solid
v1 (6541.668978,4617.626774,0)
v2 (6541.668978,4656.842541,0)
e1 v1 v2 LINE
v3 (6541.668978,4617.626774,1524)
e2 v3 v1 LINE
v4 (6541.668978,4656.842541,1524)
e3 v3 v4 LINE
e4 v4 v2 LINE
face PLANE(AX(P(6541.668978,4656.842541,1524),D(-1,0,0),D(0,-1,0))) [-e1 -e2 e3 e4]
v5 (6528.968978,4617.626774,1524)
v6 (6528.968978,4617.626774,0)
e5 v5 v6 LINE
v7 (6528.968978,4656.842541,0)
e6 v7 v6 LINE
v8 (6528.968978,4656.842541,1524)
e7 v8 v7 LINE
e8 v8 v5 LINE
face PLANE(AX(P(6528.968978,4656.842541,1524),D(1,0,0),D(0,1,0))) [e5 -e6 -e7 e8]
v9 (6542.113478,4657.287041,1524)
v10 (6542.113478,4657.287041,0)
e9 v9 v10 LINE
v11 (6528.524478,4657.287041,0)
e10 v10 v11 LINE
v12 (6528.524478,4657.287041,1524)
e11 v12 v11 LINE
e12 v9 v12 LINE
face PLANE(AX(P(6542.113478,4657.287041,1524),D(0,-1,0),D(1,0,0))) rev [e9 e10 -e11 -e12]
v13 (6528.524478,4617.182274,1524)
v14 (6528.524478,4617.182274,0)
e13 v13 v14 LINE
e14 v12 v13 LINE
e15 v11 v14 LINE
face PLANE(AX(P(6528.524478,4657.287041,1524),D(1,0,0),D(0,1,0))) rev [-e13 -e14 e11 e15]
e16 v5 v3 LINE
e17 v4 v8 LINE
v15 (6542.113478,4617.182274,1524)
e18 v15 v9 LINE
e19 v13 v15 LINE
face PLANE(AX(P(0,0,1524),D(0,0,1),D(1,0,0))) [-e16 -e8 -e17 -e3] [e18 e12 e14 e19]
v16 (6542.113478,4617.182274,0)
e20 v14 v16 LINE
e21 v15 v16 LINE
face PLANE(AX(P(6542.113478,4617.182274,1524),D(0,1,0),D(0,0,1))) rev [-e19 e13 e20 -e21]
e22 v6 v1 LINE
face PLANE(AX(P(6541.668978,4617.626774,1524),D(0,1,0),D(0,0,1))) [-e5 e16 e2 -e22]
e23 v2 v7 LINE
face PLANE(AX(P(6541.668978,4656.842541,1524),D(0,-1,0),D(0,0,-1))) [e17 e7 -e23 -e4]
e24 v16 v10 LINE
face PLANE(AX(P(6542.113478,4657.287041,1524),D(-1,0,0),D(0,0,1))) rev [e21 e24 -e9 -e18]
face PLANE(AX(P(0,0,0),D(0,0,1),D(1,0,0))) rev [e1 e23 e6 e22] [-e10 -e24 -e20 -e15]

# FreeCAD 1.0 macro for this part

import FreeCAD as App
import Part
import Sketcher

V = App.Vector
Q = App.Units.Quantity


def add_polygon(sketch, points):
    """Adds a closed chain of lines whose ends are joined by coincident constraints."""
    first, n = sketch.GeometryCount, len(points)
    for a, b in zip(points, points[1:] + points[:1]):
        sketch.addGeometry(Part.LineSegment(App.Vector(*a, 0), App.Vector(*b, 0)), False)
    for i in range(n):
        sketch.addConstraint(Sketcher.Constraint("Coincident", first + i, 2, first + (i + 1) % n, 1))

doc = App.newDocument("Part")
body = doc.addObject("PartDesign::Body", "Body")

# Sketch on XY plane
sketch1 = body.newObject("Sketcher::SketchObject", "Sketch")
sketch1.AttachmentSupport = (doc.getObject("XY_Plane"), [""])
sketch1.MapMode = "FlatFace"
add_polygon(sketch1, [(6528.524478, 4657.287041), (6528.524478, 4617.182274), (6542.113478, 4617.182274), (6542.113478, 4657.287041)])  # lines 0-3
add_polygon(sketch1, [(6541.668978, 4617.626774), (6528.968978, 4617.626774), (6528.968978, 4656.842541), (6541.668978, 4656.842541)])  # lines 4-7
sketch1.addConstraint(Sketcher.Constraint("Vertical", 0))
sketch1.addConstraint(Sketcher.Constraint("Horizontal", 1))
sketch1.addConstraint(Sketcher.Constraint("Vertical", 2))
sketch1.addConstraint(Sketcher.Constraint("Horizontal", 3))
sketch1.addConstraint(Sketcher.Constraint("Horizontal", 4))
sketch1.addConstraint(Sketcher.Constraint("Vertical", 5))
sketch1.addConstraint(Sketcher.Constraint("Horizontal", 6))
sketch1.addConstraint(Sketcher.Constraint("Vertical", 7))
sketch1.addConstraint(Sketcher.Constraint("DistanceX", 4, 2, 4, 1, Q("0.5 in")))
sketch1.addConstraint(Sketcher.Constraint("DistanceX", 1, 1, 1, 2, Q("0.535 in")))
sketch1.addConstraint(Sketcher.Constraint("DistanceX", 0, 2, 4, 2, Q("0.0175 in")))
sketch1.addConstraint(Sketcher.Constraint("DistanceY", 0, 2, 4, 2, Q("0.0175 in")))
sketch1.addConstraint(Sketcher.Constraint("DistanceY", 5, 2, 3, 2, Q("0.0175 in")))
sketch1.addConstraint(Sketcher.Constraint("DistanceY", 0, 2, 0, 1, 40.104767))
sketch1.addConstraint(Sketcher.Constraint("DistanceY", -1, 1, 2, 2, 4657.287041))
sketch1.addConstraint(Sketcher.Constraint("DistanceX", -1, 1, 0, 2, 6528.524478))
pad1 = body.newObject("PartDesign::Pad", "Pad")
pad1.Profile = sketch1
pad1.Length = Q("60 in")

doc.recompute()
